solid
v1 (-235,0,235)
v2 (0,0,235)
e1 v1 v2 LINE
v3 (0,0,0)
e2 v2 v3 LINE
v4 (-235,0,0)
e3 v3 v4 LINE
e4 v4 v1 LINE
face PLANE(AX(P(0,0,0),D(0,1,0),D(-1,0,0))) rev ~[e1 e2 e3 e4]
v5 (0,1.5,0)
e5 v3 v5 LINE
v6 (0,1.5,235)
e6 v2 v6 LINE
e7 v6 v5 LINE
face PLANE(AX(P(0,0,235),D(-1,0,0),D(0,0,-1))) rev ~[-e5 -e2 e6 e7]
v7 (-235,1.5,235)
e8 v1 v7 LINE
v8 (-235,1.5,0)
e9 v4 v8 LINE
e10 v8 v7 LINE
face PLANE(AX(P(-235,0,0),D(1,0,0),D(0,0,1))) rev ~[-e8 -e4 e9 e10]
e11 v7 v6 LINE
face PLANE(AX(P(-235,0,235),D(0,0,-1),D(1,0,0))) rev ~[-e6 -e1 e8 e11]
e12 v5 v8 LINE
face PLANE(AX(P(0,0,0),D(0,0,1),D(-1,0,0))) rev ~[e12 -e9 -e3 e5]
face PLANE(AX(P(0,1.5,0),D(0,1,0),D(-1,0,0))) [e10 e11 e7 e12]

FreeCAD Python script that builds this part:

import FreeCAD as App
import Part
import Sketcher

V = App.Vector


def add_polygon(sketch, points):
    """Adds a closed chain of lines whose ends are joined by coincident constraints."""
    first, n = sketch.GeometryCount, len(points)
    for a, b in zip(points, points[1:] + points[:1]):
        sketch.addGeometry(Part.LineSegment(App.Vector(*a, 0), App.Vector(*b, 0)), False)
    for i in range(n):
        sketch.addConstraint(Sketcher.Constraint("Coincident", first + i, 2, first + (i + 1) % n, 1))

doc = App.newDocument("Part")
body = doc.addObject("PartDesign::Body", "Body")

# Sketch on XZ plane
sketch1 = doc.addObject("Sketcher::SketchObject", "Sketch")
body.addObject(sketch1)
sketch1.AttachmentSupport = (doc.XZ_Plane, [""])
sketch1.MapMode = "FlatFace"
add_polygon(sketch1, [(0, 235), (0, 0), (-235, 0), (-235, 235)])  # lines 0-3
sketch1.addConstraint(Sketcher.Constraint("Vertical", 0))
sketch1.addConstraint(Sketcher.Constraint("Horizontal", 1))
sketch1.addConstraint(Sketcher.Constraint("Vertical", 2))
sketch1.addConstraint(Sketcher.Constraint("Horizontal", 3))
sketch1.addConstraint(Sketcher.Constraint("Coincident", 0, 2, -1, 1))
sketch1.addConstraint(Sketcher.Constraint("Equal", 3, 0))
sketch1.addConstraint(Sketcher.Constraint("DistanceX", 1, 2, 1, 1, 235.0))
pad1 = doc.addObject("PartDesign::Pad", "Pad")
body.addObject(pad1)
pad1.Profile = sketch1
pad1.Length = 1.5
pad1.Reversed = True

doc.recompute()
